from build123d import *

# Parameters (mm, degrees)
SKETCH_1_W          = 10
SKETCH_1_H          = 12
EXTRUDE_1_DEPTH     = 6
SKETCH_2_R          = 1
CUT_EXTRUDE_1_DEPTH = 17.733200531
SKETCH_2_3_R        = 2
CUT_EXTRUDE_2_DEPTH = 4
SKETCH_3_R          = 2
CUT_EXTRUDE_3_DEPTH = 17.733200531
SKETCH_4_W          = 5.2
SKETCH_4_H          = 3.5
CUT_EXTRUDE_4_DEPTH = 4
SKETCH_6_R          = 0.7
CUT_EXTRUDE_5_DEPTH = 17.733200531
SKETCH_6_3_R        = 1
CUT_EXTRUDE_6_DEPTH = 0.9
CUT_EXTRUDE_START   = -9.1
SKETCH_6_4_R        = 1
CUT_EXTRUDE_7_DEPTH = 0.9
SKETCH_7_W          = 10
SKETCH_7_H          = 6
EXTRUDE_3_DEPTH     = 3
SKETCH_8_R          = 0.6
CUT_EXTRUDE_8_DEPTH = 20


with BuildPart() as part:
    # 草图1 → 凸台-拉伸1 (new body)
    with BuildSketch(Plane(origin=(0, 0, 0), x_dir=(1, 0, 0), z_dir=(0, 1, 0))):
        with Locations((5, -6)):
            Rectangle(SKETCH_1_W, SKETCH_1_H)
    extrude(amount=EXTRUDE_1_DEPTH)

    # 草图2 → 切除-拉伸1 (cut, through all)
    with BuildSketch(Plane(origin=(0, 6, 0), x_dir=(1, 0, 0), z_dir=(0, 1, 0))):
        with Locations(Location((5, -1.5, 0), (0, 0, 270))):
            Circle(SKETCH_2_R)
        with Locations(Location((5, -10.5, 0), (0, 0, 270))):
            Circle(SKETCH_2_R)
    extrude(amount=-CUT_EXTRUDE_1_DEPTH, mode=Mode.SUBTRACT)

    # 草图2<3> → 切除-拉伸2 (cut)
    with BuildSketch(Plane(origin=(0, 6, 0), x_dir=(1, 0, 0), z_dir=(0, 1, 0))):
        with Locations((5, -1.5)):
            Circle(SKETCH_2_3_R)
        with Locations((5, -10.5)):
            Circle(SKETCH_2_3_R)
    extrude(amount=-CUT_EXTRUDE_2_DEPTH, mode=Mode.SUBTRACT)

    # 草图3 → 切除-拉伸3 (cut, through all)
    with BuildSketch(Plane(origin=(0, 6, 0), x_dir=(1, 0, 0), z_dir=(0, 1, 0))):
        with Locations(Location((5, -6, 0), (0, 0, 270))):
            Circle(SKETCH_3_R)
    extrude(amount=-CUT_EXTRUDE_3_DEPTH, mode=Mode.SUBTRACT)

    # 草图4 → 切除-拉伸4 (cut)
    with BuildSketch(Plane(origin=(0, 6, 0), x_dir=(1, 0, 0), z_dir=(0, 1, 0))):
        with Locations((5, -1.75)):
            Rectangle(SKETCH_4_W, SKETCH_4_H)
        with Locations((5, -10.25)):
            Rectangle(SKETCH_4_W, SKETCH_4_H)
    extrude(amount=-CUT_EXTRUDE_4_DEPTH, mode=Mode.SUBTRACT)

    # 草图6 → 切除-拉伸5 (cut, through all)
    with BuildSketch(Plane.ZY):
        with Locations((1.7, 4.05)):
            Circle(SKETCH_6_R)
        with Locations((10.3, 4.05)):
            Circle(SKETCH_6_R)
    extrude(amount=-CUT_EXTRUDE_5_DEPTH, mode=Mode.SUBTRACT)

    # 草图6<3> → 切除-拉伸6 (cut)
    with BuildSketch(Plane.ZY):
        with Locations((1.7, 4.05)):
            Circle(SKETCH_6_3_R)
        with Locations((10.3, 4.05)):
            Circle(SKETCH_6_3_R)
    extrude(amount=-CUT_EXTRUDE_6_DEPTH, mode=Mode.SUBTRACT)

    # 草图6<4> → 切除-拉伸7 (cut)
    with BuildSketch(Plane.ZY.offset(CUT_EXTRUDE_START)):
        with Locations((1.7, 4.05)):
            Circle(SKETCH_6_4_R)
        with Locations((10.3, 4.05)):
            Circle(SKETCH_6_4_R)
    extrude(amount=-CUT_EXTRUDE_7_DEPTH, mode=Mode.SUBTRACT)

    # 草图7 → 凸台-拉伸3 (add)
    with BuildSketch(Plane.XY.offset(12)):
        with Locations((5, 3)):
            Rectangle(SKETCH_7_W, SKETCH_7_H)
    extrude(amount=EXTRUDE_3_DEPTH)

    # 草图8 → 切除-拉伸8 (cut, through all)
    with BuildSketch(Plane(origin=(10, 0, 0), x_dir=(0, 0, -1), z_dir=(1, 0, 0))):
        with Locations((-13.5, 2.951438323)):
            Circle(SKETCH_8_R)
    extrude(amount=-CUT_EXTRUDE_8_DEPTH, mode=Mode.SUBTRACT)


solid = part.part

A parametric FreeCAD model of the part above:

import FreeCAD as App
import Part
import Sketcher

V = App.Vector
Q = App.Units.Quantity


def add_polygon(sketch, points):
    """Adds a closed chain of lines whose ends are joined by coincident constraints."""
    first, n = sketch.GeometryCount, len(points)
    for a, b in zip(points, points[1:] + points[:1]):
        sketch.addGeometry(Part.LineSegment(App.Vector(*a, 0), App.Vector(*b, 0)), False)
    for i in range(n):
        sketch.addConstraint(Sketcher.Constraint("Coincident", first + i, 2, first + (i + 1) % n, 1))

doc = App.newDocument("Part")
body = doc.addObject("PartDesign::Body", "Body")

sketch1 = body.newObject("Sketcher::SketchObject", "Sketch")
sketch1.AttachmentSupport = (doc.getObject("XZ_Plane"), [""])
sketch1.MapMode = "FlatFace"
add_polygon(sketch1, [(0, 0), (0, 12), (10, 12), (10, 0)])
sketch1.addConstraint([
    Sketcher.Constraint("Vertical", 0),
    Sketcher.Constraint("Horizontal", 1),
    Sketcher.Constraint("Vertical", 2),
    Sketcher.Constraint("Horizontal", 3),
    Sketcher.Constraint("Coincident", 3, 2, -1, 1),
    Sketcher.Constraint("DistanceX", 1, 1, 1, 2, Q("10 mm")),
    Sketcher.Constraint("DistanceY", 0, 1, 0, 2, Q("12 mm")),
])
pad1 = body.newObject("PartDesign::Pad", "Pad")
pad1.Profile = sketch1
pad1.Length = 6
pad1.Reversed = True

sketch2 = body.newObject("Sketcher::SketchObject", "Sketch001")
sketch2.AttachmentSupport = (doc.getObject("XZ_Plane"), [""])
sketch2.MapMode = "FlatFace"
sketch2.AttachmentOffset = App.Placement(V(0, 0, -6), App.Rotation())
sketch2.addGeometry([
    Part.Circle(V(5, 1.5, 0), V(0, 0, 1), 1),
    Part.Circle(V(5, 10.5, 0), V(0, 0, 1), 1),
], False)
sketch2.addConstraint([
    Sketcher.Constraint("Equal", 0, 1),
    Sketcher.Constraint("Vertical", 0, 3, 1, 3),
    Sketcher.Constraint("Diameter", 0, Q("2 mm")),
    Sketcher.Constraint("DistanceX", -1, 1, 0, 3, Q("5 mm")),
    Sketcher.Constraint("DistanceY", 0, 3, 1, 3, Q("9 mm")),
    Sketcher.Constraint("DistanceY", -1, 1, 0, 3, Q("1.5 mm")),
])
pocket1 = body.newObject("PartDesign::Pocket", "Pocket")
pocket1.Profile = sketch2
pocket1.Type = "ThroughAll"
pocket1.Reversed = True

sketch3 = body.newObject("Sketcher::SketchObject", "Sketch002")
sketch3.AttachmentSupport = (doc.getObject("XZ_Plane"), [""])
sketch3.MapMode = "FlatFace"
sketch3.AttachmentOffset = App.Placement(V(0, 0, -6), App.Rotation())
sketch3.addGeometry([
    Part.Circle(V(5, 1.5, 0), V(0, 0, 1), 2),
    Part.Circle(V(5, 10.5, 0), V(0, 0, 1), 2),
], False)
sketch3.addConstraint([
    Sketcher.Constraint("Equal", 0, 1),
    Sketcher.Constraint("Vertical", 0, 3, 1, 3),
    Sketcher.Constraint("Diameter", 0, Q("4 mm")),
    Sketcher.Constraint("DistanceX", -1, 1, 0, 3, Q("5 mm")),
    Sketcher.Constraint("DistanceY", 0, 3, 1, 3, Q("9 mm")),
    Sketcher.Constraint("DistanceY", -1, 1, 0, 3, Q("1.5 mm")),
])
pocket2 = body.newObject("PartDesign::Pocket", "Pocket001")
pocket2.Profile = sketch3
pocket2.Length = 4
pocket2.Reversed = True

sketch4 = body.newObject("Sketcher::SketchObject", "Sketch003")
sketch4.AttachmentSupport = (doc.getObject("XZ_Plane"), [""])
sketch4.MapMode = "FlatFace"
sketch4.AttachmentOffset = App.Placement(V(0, 0, -6), App.Rotation())
sketch4.addGeometry(Part.Circle(V(5, 6, 0), V(0, 0, 1), 2), False)
sketch4.addConstraint([
    Sketcher.Constraint("Diameter", 0, Q("4 mm")),
    Sketcher.Constraint("DistanceX", -1, 1, 0, 3, Q("5 mm")),
    Sketcher.Constraint("DistanceY", -1, 1, 0, 3, Q("6 mm")),
])
pocket3 = body.newObject("PartDesign::Pocket", "Pocket002")
pocket3.Profile = sketch4
pocket3.Type = "ThroughAll"
pocket3.Reversed = True

sketch5 = body.newObject("Sketcher::SketchObject", "Sketch004")
sketch5.AttachmentSupport = (doc.getObject("XZ_Plane"), [""])
sketch5.MapMode = "FlatFace"
sketch5.AttachmentOffset = App.Placement(V(0, 0, -6), App.Rotation())
add_polygon(sketch5, [(2.4, 0), (2.4, 3.5), (7.6, 3.5), (7.6, 0)])
add_polygon(sketch5, [(2.4, 8.5), (2.4, 12), (7.6, 12), (7.6, 8.5)])
sketch5.addConstraint([
    Sketcher.Constraint("Vertical", 0),
    Sketcher.Constraint("Horizontal", 1),
    Sketcher.Constraint("Vertical", 2),
    Sketcher.Constraint("Horizontal", 3),
    Sketcher.Constraint("Vertical", 4),
    Sketcher.Constraint("Horizontal", 5),
    Sketcher.Constraint("Vertical", 6),
    Sketcher.Constraint("Horizontal", 7),
    Sketcher.Constraint("PointOnObject", 2, 2, -1),
    Sketcher.Constraint("Vertical", 3, 2, 4, 2),
    Sketcher.Constraint("Vertical", 2, 2, 5, 2),
    Sketcher.Constraint("Equal", 2, 4),
    Sketcher.Constraint("DistanceX", 1, 1, 1, 2, Q("5.2 mm")),
    Sketcher.Constraint("DistanceY", 0, 1, 0, 2, Q("3.5 mm")),
    Sketcher.Constraint("DistanceY", -1, 1, 4, 2, Q("12 mm")),
    Sketcher.Constraint("DistanceX", -1, 1, 0, 2, Q("2.4 mm")),
])
pocket4 = body.newObject("PartDesign::Pocket", "Pocket003")
pocket4.Profile = sketch5
pocket4.Length = 4
pocket4.Reversed = True

sketch6 = body.newObject("Sketcher::SketchObject", "Sketch005")
sketch6.AttachmentSupport = (doc.getObject("YZ_Plane"), [""])
sketch6.MapMode = "FlatFace"
sketch6.addGeometry([
    Part.Circle(V(4, 1.7, 0), V(0, 0, 1), 0.7),
    Part.Circle(V(4, 10.3, 0), V(0, 0, 1), 0.7),
], False)
sketch6.addConstraint([
    Sketcher.Constraint("Equal", 0, 1),
    Sketcher.Constraint("Vertical", 0, 3, 1, 3),
    Sketcher.Constraint("Diameter", 0, Q("1.4 mm")),
    Sketcher.Constraint("DistanceY", -1, 1, 0, 3, Q("1.7 mm")),
    Sketcher.Constraint("DistanceY", -1, 1, 1, 3, Q("10.3 mm")),
    Sketcher.Constraint("DistanceX", -1, 1, 0, 3, Q("4.05 mm")),
])
pocket5 = body.newObject("PartDesign::Pocket", "Pocket004")
pocket5.Profile = sketch6
pocket5.Type = "ThroughAll"
pocket5.Reversed = True

sketch7 = body.newObject("Sketcher::SketchObject", "Sketch006")
sketch7.AttachmentSupport = (doc.getObject("YZ_Plane"), [""])
sketch7.MapMode = "FlatFace"
sketch7.addGeometry([
    Part.Circle(V(4, 1.7, 0), V(0, 0, 1), 1),
    Part.Circle(V(4, 10.3, 0), V(0, 0, 1), 1),
], False)
sketch7.addConstraint([
    Sketcher.Constraint("Equal", 0, 1),
    Sketcher.Constraint("Vertical", 0, 3, 1, 3),
    Sketcher.Constraint("Diameter", 0, Q("2 mm")),
    Sketcher.Constraint("DistanceY", -1, 1, 0, 3, Q("1.7 mm")),
    Sketcher.Constraint("DistanceY", -1, 1, 1, 3, Q("10.3 mm")),
    Sketcher.Constraint("DistanceX", -1, 1, 0, 3, Q("4.05 mm")),
])
pocket6 = body.newObject("PartDesign::Pocket", "Pocket005")
pocket6.Profile = sketch7
pocket6.Length = 0.9
pocket6.Reversed = True

sketch8 = body.newObject("Sketcher::SketchObject", "Sketch007")
sketch8.AttachmentSupport = (doc.getObject("YZ_Plane"), [""])
sketch8.MapMode = "FlatFace"
sketch8.AttachmentOffset = App.Placement(V(0, 0, 9.1), App.Rotation())
sketch8.addGeometry([
    Part.Circle(V(4, 1.7, 0), V(0, 0, 1), 1),
    Part.Circle(V(4, 10.3, 0), V(0, 0, 1), 1),
], False)
sketch8.addConstraint([
    Sketcher.Constraint("Equal", 0, 1),
    Sketcher.Constraint("Vertical", 0, 3, 1, 3),
    Sketcher.Constraint("Diameter", 0, Q("2 mm")),
    Sketcher.Constraint("DistanceY", -1, 1, 0, 3, Q("1.7 mm")),
    Sketcher.Constraint("DistanceY", -1, 1, 1, 3, Q("10.3 mm")),
    Sketcher.Constraint("DistanceX", -1, 1, 0, 3, Q("4.05 mm")),
])
pocket7 = body.newObject("PartDesign::Pocket", "Pocket006")
pocket7.Profile = sketch8
pocket7.Length = 0.9
pocket7.Reversed = True

sketch9 = body.newObject("Sketcher::SketchObject", "Sketch008")
sketch9.AttachmentSupport = (doc.getObject("XY_Plane"), [""])
sketch9.MapMode = "FlatFace"
sketch9.AttachmentOffset = App.Placement(V(0, 0, 12), App.Rotation())
add_polygon(sketch9, [(0, 6), (0, 0), (10, 0), (10, 6)])
sketch9.addConstraint([
    Sketcher.Constraint("Vertical", 0),
    Sketcher.Constraint("Horizontal", 1),
    Sketcher.Constraint("Vertical", 2),
    Sketcher.Constraint("Horizontal", 3),
    Sketcher.Constraint("Coincident", 0, 2, -1, 1),
    Sketcher.Constraint("DistanceX", 1, 1, 1, 2, Q("10 mm")),
    Sketcher.Constraint("DistanceY", 0, 2, 0, 1, Q("6 mm")),
])
pad2 = body.newObject("PartDesign::Pad", "Pad001")
pad2.Profile = sketch9
pad2.Length = 3

sketch10 = body.newObject("Sketcher::SketchObject", "Sketch009")
sketch10.AttachmentSupport = (doc.getObject("YZ_Plane"), [""])
sketch10.MapMode = "FlatFace"
sketch10.AttachmentOffset = App.Placement(V(0, 0, 10), App.Rotation())
sketch10.addGeometry(Part.Circle(V(3, 13.5, 0), V(0, 0, 1), 0.6), False)
sketch10.addConstraint([
    Sketcher.Constraint("Diameter", 0, Q("1.2 mm")),
    Sketcher.Constraint("DistanceY", -1, 1, 0, 3, Q("13.5 mm")),
    Sketcher.Constraint("DistanceX", -1, 1, 0, 3, Q("2.951438 mm")),
])
pocket8 = body.newObject("PartDesign::Pocket", "Pocket007")
pocket8.Profile = sketch10
pocket8.Type = "ThroughAll"

doc.recompute()
